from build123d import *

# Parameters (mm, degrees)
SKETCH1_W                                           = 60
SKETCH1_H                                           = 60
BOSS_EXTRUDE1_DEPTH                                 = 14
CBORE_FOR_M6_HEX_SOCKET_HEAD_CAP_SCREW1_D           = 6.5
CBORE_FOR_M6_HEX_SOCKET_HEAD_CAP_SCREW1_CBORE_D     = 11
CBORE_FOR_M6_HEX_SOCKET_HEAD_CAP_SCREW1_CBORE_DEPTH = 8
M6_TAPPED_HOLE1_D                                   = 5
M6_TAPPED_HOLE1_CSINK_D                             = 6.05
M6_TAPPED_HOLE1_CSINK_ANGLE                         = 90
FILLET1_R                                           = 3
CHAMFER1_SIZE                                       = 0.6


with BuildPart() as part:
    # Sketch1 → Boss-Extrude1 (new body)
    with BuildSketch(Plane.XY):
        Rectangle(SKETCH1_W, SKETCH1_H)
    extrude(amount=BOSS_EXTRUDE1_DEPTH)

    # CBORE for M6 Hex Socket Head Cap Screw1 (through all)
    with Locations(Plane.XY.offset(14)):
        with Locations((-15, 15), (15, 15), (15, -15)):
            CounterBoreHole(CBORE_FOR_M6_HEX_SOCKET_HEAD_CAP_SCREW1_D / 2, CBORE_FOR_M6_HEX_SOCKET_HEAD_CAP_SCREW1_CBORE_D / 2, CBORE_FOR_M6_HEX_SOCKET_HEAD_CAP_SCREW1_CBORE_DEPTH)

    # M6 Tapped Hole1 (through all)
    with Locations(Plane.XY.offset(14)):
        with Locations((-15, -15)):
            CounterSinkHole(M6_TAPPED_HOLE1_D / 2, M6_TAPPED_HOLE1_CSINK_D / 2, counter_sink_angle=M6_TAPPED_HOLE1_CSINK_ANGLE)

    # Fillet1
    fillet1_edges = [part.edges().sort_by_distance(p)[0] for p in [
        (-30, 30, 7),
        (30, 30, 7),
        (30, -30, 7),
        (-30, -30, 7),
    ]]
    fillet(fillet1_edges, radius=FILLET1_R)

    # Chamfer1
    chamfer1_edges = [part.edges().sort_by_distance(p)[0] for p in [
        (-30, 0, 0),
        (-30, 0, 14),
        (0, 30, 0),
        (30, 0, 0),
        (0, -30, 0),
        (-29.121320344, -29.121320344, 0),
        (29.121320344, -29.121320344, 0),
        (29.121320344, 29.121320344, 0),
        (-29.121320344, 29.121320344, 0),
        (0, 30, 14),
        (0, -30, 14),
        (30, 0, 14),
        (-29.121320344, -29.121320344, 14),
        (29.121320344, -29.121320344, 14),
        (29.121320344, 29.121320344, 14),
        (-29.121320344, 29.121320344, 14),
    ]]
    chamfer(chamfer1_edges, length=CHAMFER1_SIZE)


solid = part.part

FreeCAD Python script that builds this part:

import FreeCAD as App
import Part
import Sketcher

V = App.Vector


def edges_at(feature, points):
    """Names of the edges that pass closest to the given points."""
    edges = feature.Shape.Edges
    near = lambda p: min(range(len(edges)), key=lambda i: edges[i].distToShape(Part.Vertex(*p))[0])
    return sorted({f"Edge{near(p) + 1}" for p in points})

doc = App.newDocument("Part")
params = doc.addObject("Spreadsheet::Sheet", "Params")
for row, (alias, value) in enumerate([
    ("sketch1_width", "60 mm"),
    ("pad1_length", "14 mm"),
    ("sketch2_diameter", "6.5 mm"),
    ("hole_diameter", "6.5 mm"),
    ("hole_cbore_diameter", "11 mm"),
    ("hole_cbore_depth", "8 mm"),
    ("sketch3_diameter", "5 mm"),
    ("hole2_diameter", "5 mm"),
    ("hole2_csink_diameter", "6.05 mm"),
    ("fillet_radius", "3 mm"),
    ("chamfer_size", "0.6 mm"),
], start=1):
    params.set(f"A{row}", alias)
    params.set(f"B{row}", "=" + value)
    params.setAlias(f"B{row}", alias)

body = doc.addObject("PartDesign::Body", "Body")

sketch1 = body.newObject("Sketcher::SketchObject", "Sketch")
sketch1.AttachmentSupport = (doc.getObject("XY_Plane"), [""])
sketch1.MapMode = "FlatFace"
sketch1.addGeometry([
    Part.LineSegment(V(-30, 30, 0), V(-30, -30, 0)),
    Part.LineSegment(V(-30, -30, 0), V(30, -30, 0)),
    Part.LineSegment(V(30, -30, 0), V(30, 30, 0)),
    Part.LineSegment(V(30, 30, 0), V(-30, 30, 0)),
], False)
sketch1.addConstraint([
    Sketcher.Constraint("Coincident", 0, 2, 1, 1),
    Sketcher.Constraint("Coincident", 1, 2, 2, 1),
    Sketcher.Constraint("Coincident", 2, 2, 3, 1),
    Sketcher.Constraint("Coincident", 3, 2, 0, 1),
    Sketcher.Constraint("Vertical", 0),
    Sketcher.Constraint("Horizontal", 1),
    Sketcher.Constraint("Vertical", 2),
    Sketcher.Constraint("Horizontal", 3),
    Sketcher.Constraint("Symmetric", 0, 2, 2, 2, -1, 1),
    Sketcher.Constraint("Equal", 3, 0),
    Sketcher.Constraint("DistanceX", 1, 1, 1, 2, 60.0),
])
sketch1.setExpression("Constraints[10]", "Params.sketch1_width")
pad1 = body.newObject("PartDesign::Pad", "Pad")
pad1.Profile = sketch1
pad1.setExpression("Length", "Params.pad1_length")

sketch2 = body.newObject("Sketcher::SketchObject", "Sketch001")
sketch2.AttachmentSupport = (doc.getObject("XY_Plane"), [""])
sketch2.MapMode = "FlatFace"
sketch2.AttachmentOffset = App.Placement(V(0, 0, 14), App.Rotation())
sketch2.addGeometry([
    Part.Circle(V(-15, 15, 0), V(0, 0, 1), 3.2),
    Part.Circle(V(15, 15, 0), V(0, 0, 1), 3.2),
    Part.Circle(V(15, -15, 0), V(0, 0, 1), 3.2),
], False)
sketch2.addConstraint([
    Sketcher.Constraint("Equal", 0, 1),
    Sketcher.Constraint("Equal", 1, 2),
    Sketcher.Constraint("Symmetric", 0, 3, 2, 3, -1, 1),
    Sketcher.Constraint("Symmetric", 0, 3, 1, 3, -2),
    Sketcher.Constraint("Diameter", 0, 6.5),
    Sketcher.Constraint("DistanceX", 0, 3, -1, 1, 15.0),
    Sketcher.Constraint("DistanceY", -1, 1, 0, 3, 15.0),
])
sketch2.setExpression("Constraints[4]", "Params.sketch2_diameter")
doc.recompute()
hole = body.newObject("PartDesign::Hole", "Hole")
hole.Profile = sketch2
hole.ThreadType = "None"
hole.setExpression("Diameter", "Params.hole_diameter")
hole.DepthType = "ThroughAll"
hole.HoleCutType = "Counterbore"
hole.setExpression("HoleCutDiameter", "Params.hole_cbore_diameter")
hole.setExpression("HoleCutDepth", "Params.hole_cbore_depth")

sketch3 = body.newObject("Sketcher::SketchObject", "Sketch002")
sketch3.AttachmentSupport = (doc.getObject("XY_Plane"), [""])
sketch3.MapMode = "FlatFace"
sketch3.AttachmentOffset = App.Placement(V(0, 0, 14), App.Rotation())
sketch3.addGeometry(Part.Circle(V(-15, -15, 0), V(0, 0, 1), 2.5), False)
sketch3.addConstraint([
    Sketcher.Constraint("Diameter", 0, 5.0),
    Sketcher.Constraint("DistanceX", 0, 3, -1, 1, 15.0),
    Sketcher.Constraint("DistanceY", 0, 3, -1, 1, 15.0),
])
sketch3.setExpression("Constraints[0]", "Params.sketch3_diameter")
doc.recompute()
hole2 = body.newObject("PartDesign::Hole", "Hole001")
hole2.Profile = sketch3
hole2.ThreadType = "None"
hole2.setExpression("Diameter", "Params.hole2_diameter")
hole2.DepthType = "ThroughAll"
hole2.HoleCutType = "Countersink"
hole2.setExpression("HoleCutDiameter", "Params.hole2_csink_diameter")
hole2.HoleCutCountersinkAngle = 90
doc.recompute()

fillet = body.newObject("PartDesign::Fillet", "Fillet")
fillet.Base = (hole2, edges_at(hole2, [
    (-30, 30, 7),
    (30, 30, 7),
    (30, -30, 7),
    (-30, -30, 7),
]))
fillet.setExpression("Radius", "Params.fillet_radius")
doc.recompute()

chamfer = body.newObject("PartDesign::Chamfer", "Chamfer")
chamfer.Base = (fillet, edges_at(fillet, [
    (-30, 0, 0),
    (-30, 0, 14),
    (0, 30, 0),
    (30, 0, 0),
    (0, -30, 0),
    (-29.121, -29.121, 0),
    (29.121, -29.121, 0),
    (29.121, 29.121, 0),
    (-29.121, 29.121, 0),
    (0, 30, 14),
    (0, -30, 14),
    (30, 0, 14),
    (-29.121, -29.121, 14),
    (29.121, -29.121, 14),
    (29.121, 29.121, 14),
    (-29.121, 29.121, 14),
]))
chamfer.setExpression("Size", "Params.chamfer_size")

doc.recompute()
